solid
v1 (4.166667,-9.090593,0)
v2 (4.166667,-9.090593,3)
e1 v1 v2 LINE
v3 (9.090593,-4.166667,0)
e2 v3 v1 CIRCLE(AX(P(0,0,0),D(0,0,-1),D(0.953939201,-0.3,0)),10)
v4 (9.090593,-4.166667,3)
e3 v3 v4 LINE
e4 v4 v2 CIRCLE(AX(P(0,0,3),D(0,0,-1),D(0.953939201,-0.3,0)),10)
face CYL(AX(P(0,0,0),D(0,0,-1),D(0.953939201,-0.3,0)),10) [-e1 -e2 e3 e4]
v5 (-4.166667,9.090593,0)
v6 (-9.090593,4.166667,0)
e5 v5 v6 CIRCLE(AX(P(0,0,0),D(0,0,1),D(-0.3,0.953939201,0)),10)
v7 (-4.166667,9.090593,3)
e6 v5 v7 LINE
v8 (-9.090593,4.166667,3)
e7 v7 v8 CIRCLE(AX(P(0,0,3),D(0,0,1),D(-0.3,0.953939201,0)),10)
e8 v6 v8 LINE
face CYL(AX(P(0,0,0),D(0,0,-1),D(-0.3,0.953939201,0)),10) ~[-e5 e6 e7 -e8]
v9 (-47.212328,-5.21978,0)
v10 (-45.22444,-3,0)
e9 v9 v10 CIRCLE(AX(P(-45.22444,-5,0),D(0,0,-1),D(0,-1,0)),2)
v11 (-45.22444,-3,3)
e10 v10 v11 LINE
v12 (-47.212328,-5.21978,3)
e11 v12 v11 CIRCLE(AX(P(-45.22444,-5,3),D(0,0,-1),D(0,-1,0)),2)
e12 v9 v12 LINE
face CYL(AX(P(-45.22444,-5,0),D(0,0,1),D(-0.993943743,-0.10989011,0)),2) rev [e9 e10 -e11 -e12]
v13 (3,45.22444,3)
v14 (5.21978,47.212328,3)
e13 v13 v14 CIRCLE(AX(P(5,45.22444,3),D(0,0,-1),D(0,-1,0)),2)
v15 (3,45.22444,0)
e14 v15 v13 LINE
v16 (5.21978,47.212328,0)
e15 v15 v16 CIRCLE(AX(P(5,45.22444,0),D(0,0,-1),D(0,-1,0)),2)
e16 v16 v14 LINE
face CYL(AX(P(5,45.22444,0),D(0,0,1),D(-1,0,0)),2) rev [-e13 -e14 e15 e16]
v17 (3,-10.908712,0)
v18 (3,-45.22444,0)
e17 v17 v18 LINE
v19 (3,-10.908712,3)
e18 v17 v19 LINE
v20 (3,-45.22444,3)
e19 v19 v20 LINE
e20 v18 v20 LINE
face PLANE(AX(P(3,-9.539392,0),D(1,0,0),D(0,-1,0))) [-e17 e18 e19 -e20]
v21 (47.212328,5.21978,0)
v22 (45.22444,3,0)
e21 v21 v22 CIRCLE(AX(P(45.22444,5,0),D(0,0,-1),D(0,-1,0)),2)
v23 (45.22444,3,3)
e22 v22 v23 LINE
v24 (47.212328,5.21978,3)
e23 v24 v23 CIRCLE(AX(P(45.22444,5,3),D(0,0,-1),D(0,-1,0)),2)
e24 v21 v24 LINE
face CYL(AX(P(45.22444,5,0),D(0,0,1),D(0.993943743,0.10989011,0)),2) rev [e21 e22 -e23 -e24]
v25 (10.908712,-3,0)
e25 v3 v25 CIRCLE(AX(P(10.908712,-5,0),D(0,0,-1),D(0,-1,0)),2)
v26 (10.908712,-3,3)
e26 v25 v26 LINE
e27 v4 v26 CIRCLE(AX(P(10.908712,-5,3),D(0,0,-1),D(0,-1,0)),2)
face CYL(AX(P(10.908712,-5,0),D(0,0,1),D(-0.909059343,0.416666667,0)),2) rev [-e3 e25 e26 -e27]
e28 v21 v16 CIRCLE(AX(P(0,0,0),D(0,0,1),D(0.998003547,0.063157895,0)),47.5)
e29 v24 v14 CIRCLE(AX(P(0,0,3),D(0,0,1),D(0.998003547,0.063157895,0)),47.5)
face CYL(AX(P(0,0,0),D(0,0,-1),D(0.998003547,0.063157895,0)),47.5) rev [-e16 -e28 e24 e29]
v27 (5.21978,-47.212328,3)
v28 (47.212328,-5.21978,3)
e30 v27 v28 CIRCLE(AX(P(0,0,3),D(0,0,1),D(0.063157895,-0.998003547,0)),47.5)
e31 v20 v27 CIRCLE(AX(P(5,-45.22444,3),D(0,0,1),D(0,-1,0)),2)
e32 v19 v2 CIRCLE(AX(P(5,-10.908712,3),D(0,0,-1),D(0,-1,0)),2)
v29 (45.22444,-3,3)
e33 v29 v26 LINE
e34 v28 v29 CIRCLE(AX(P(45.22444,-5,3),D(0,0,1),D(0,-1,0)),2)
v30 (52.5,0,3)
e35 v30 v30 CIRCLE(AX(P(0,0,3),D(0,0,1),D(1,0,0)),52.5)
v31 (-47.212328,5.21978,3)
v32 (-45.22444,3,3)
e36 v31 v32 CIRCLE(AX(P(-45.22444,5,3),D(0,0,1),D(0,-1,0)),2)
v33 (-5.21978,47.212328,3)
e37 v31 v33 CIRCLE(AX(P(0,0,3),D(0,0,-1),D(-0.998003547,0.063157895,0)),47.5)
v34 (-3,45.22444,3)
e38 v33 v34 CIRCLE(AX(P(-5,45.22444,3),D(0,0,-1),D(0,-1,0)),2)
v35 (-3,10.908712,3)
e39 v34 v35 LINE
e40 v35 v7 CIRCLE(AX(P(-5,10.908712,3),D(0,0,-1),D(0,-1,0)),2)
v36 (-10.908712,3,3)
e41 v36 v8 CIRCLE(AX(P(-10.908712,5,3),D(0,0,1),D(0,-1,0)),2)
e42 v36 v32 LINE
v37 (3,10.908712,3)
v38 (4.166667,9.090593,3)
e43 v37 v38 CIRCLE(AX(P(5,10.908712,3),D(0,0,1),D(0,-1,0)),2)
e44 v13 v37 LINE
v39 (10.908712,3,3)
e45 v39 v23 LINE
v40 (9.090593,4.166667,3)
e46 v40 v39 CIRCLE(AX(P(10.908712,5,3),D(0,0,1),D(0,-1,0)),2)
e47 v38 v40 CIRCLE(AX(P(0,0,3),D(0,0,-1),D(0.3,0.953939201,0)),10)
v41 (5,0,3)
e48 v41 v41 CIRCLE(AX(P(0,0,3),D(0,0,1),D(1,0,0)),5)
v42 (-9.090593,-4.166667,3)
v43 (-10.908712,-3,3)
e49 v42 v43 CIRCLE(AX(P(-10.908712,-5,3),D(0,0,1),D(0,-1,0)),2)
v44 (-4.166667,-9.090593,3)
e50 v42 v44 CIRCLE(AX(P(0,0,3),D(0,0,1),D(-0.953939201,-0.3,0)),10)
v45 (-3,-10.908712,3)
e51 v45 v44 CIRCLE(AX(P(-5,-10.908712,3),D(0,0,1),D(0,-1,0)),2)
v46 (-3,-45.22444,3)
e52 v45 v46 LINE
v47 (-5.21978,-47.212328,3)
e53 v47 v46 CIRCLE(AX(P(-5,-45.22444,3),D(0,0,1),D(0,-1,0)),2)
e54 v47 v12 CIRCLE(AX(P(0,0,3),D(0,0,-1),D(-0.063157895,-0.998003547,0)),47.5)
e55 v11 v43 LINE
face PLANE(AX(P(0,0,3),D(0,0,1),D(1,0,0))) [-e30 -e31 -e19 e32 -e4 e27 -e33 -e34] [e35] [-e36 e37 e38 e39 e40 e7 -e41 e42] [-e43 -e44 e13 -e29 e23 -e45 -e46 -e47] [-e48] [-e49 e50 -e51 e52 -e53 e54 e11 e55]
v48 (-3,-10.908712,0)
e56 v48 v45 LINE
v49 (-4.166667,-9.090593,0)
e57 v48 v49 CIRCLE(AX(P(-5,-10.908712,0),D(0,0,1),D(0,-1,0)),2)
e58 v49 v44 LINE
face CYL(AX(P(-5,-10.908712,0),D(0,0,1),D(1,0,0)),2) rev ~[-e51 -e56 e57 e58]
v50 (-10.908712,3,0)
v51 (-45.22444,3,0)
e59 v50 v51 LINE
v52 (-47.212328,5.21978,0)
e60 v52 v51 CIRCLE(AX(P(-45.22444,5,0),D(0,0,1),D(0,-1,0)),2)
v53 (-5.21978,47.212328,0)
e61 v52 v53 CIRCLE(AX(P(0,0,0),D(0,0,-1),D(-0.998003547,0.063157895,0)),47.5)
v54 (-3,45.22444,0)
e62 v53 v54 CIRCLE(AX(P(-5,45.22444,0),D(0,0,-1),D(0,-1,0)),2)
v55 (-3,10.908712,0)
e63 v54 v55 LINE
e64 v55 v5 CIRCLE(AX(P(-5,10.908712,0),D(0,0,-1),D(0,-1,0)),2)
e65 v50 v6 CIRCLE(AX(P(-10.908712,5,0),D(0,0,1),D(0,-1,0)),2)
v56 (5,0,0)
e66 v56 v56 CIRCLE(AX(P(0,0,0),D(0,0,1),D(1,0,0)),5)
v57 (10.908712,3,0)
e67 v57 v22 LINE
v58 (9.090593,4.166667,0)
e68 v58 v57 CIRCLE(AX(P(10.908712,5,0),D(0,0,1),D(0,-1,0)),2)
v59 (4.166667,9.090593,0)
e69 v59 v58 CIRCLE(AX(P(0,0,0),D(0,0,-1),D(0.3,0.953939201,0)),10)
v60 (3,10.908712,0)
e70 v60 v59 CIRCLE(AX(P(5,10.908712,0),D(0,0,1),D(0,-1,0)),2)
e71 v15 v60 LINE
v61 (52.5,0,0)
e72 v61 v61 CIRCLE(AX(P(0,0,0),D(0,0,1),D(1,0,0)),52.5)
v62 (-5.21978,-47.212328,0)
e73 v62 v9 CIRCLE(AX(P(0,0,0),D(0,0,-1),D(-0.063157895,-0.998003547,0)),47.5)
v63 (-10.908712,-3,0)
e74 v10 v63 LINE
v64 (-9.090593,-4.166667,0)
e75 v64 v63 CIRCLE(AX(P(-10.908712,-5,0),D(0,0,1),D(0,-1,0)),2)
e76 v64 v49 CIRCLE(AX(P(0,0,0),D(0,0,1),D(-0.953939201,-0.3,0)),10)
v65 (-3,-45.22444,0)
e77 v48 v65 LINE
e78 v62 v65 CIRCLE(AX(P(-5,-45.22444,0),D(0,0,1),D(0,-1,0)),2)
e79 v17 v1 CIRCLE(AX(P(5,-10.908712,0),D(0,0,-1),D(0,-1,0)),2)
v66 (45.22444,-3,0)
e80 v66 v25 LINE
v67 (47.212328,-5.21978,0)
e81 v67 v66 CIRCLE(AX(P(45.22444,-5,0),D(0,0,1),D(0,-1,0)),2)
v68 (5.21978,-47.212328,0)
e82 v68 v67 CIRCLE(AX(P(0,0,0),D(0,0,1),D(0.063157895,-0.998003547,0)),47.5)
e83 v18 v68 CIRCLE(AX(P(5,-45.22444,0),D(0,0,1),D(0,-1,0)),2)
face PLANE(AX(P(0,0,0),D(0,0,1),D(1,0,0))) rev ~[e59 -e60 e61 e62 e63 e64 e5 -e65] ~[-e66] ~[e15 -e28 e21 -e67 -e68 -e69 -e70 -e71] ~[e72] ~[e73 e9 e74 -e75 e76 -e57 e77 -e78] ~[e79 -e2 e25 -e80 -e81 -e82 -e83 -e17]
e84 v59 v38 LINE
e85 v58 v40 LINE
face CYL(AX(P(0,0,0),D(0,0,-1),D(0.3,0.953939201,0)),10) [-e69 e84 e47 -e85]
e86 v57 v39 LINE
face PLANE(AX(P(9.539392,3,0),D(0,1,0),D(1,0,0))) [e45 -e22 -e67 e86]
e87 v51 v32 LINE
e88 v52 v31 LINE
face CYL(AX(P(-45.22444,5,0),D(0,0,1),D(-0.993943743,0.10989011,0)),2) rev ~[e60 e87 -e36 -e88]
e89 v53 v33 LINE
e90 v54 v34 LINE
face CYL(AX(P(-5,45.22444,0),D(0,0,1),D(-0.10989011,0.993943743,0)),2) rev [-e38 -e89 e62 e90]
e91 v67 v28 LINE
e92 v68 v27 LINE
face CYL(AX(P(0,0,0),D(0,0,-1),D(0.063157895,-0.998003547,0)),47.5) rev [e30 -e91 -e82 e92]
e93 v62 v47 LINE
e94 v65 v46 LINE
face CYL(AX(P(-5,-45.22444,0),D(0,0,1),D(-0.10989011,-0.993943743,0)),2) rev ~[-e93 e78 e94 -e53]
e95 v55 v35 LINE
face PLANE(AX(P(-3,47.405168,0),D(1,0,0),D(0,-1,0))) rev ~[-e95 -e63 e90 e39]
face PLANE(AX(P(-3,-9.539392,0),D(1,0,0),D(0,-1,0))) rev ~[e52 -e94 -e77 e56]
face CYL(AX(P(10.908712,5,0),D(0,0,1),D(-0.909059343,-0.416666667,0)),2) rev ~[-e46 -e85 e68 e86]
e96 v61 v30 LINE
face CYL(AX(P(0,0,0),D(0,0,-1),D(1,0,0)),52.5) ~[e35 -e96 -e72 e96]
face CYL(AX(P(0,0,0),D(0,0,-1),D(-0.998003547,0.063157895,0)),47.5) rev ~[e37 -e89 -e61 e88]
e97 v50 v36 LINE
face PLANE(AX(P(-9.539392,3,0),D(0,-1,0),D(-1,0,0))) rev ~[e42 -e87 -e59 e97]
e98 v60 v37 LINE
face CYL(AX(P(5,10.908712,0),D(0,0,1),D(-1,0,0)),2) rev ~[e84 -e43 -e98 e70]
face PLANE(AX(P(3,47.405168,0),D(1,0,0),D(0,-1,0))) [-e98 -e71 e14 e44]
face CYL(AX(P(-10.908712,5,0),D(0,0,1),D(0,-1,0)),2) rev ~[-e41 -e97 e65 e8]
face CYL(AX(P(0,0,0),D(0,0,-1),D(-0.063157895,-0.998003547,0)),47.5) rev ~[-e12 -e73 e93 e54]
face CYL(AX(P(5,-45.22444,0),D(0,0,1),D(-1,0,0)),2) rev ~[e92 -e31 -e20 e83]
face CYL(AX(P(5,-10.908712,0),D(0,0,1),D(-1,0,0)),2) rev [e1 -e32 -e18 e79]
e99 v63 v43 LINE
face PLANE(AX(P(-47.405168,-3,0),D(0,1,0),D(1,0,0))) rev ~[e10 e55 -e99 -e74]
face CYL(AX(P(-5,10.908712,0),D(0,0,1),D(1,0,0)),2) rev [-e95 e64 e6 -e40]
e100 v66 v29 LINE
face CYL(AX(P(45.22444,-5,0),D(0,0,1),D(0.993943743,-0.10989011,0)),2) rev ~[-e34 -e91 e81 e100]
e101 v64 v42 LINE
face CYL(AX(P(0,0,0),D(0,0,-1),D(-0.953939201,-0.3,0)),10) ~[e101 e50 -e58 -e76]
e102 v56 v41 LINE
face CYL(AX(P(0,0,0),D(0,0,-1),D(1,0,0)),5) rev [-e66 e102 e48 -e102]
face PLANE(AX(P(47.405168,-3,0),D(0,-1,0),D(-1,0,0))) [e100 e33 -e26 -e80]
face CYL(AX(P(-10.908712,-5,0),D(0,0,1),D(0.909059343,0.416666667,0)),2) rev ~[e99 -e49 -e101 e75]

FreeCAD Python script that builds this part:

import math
import FreeCAD as App
import Part
import Sketcher
from FreeCAD import Vector
Q = App.Units.Quantity


def edges_at(feature, points):
    """Names of the edges that pass closest to the given points."""
    edges = feature.Shape.Edges
    near = lambda p: min(range(len(edges)), key=lambda i: edges[i].distToShape(Part.Vertex(*p))[0])
    return sorted({f"Edge{near(p) + 1}" for p in points})

doc = App.newDocument("Part")
body = doc.addObject("PartDesign::Body", "Body")

sketch1 = body.newObject("Sketcher::SketchObject", "Sketch")
sketch1.AttachmentSupport = (doc.getObject("XY_Plane"), [""])
sketch1.MapMode = "FlatFace"
sketch1.addGeometry([
    Part.Circle(Vector(0, 0, 0), Vector(0, 0, 1), 52.5),
    Part.ArcOfCircle(Part.Circle(Vector(0, 0, 0), Vector(0, 0, 1), 47.5), math.radians(-176.378909), math.radians(-93.621091)),
    Part.LineSegment(Vector(-47.405168, -3, 0), Vector(-9.539392, -3, 0)),
    Part.ArcOfCircle(Part.Circle(Vector(0, 0, 0), Vector(0, 0, 1), 10), math.radians(-162.542397), math.radians(-107.457603)),
    Part.LineSegment(Vector(-3, -9.539392, 0), Vector(-3, -47.405168, 0)),
    Part.LineSegment(Vector(3, -47.405168, 0), Vector(3, -9.539392, 0)),
    Part.ArcOfCircle(Part.Circle(Vector(0, 0, 0), Vector(0, 0, 1), 10), math.radians(-72.542397), math.radians(-17.457603)),
    Part.LineSegment(Vector(9.539392, -3, 0), Vector(47.405168, -3, 0)),
    Part.ArcOfCircle(Part.Circle(Vector(0, 0, 0), Vector(0, 0, 1), 47.5), math.radians(-86.378909), math.radians(-3.621091)),
    Part.Circle(Vector(0, 0, 0), Vector(0, 0, 1), 5),
    Part.ArcOfCircle(Part.Circle(Vector(0, 0, 0), Vector(0, 0, 1), 47.5), math.radians(93.621091), math.radians(176.378909)),
    Part.LineSegment(Vector(-3, 47.405168, 0), Vector(-3, 9.539392, 0)),
    Part.ArcOfCircle(Part.Circle(Vector(0, 0, 0), Vector(0, 0, 1), 10), math.radians(107.457603), math.radians(162.542397)),
    Part.LineSegment(Vector(-9.539392, 3, 0), Vector(-47.405168, 3, 0)),
    Part.LineSegment(Vector(3, 9.539392, 0), Vector(3, 47.405168, 0)),
    Part.ArcOfCircle(Part.Circle(Vector(0, 0, 0), Vector(0, 0, 1), 47.5), math.radians(3.621091), math.radians(86.378909)),
    Part.LineSegment(Vector(47.405168, 3, 0), Vector(9.539392, 3, 0)),
    Part.ArcOfCircle(Part.Circle(Vector(0, 0, 0), Vector(0, 0, 1), 10), math.radians(17.457603), math.radians(72.542397)),
], False)
sketch1.addConstraint([
    Sketcher.Constraint("Coincident", 1, 1, 2, 1),
    Sketcher.Constraint("Coincident", 2, 2, 3, 1),
    Sketcher.Constraint("Coincident", 3, 2, 4, 1),
    Sketcher.Constraint("Coincident", 4, 2, 1, 2),
    Sketcher.Constraint("Coincident", 5, 2, 6, 1),
    Sketcher.Constraint("Coincident", 6, 2, 7, 1),
    Sketcher.Constraint("Coincident", 7, 2, 8, 2),
    Sketcher.Constraint("Coincident", 8, 1, 5, 1),
    Sketcher.Constraint("Coincident", 10, 1, 11, 1),
    Sketcher.Constraint("Coincident", 11, 2, 12, 1),
    Sketcher.Constraint("Coincident", 12, 2, 13, 1),
    Sketcher.Constraint("Coincident", 13, 2, 10, 2),
    Sketcher.Constraint("Coincident", 14, 2, 15, 2),
    Sketcher.Constraint("Coincident", 15, 1, 16, 1),
    Sketcher.Constraint("Coincident", 16, 2, 17, 1),
    Sketcher.Constraint("Coincident", 17, 2, 14, 1),
    Sketcher.Constraint("Horizontal", 2),
    Sketcher.Constraint("Vertical", 4),
    Sketcher.Constraint("Vertical", 5),
    Sketcher.Constraint("Horizontal", 7),
    Sketcher.Constraint("Vertical", 11),
    Sketcher.Constraint("Horizontal", 13),
    Sketcher.Constraint("Vertical", 14),
    Sketcher.Constraint("Horizontal", 16),
    Sketcher.Constraint("Coincident", 0, 3, -1, 1),
    Sketcher.Constraint("Coincident", 1, 3, -1, 1),
    Sketcher.Constraint("Coincident", 3, 3, -1, 1),
    Sketcher.Constraint("Coincident", 6, 3, -1, 1),
    Sketcher.Constraint("Coincident", 8, 3, -1, 1),
    Sketcher.Constraint("Coincident", 9, 3, -1, 1),
    Sketcher.Constraint("Coincident", 10, 3, -1, 1),
    Sketcher.Constraint("Coincident", 12, 3, -1, 1),
    Sketcher.Constraint("Coincident", 15, 3, -1, 1),
    Sketcher.Constraint("Coincident", 17, 3, -1, 1),
    Sketcher.Constraint("Equal", 3, 6),
    Sketcher.Constraint("Equal", 1, 8),
    Sketcher.Constraint("Equal", 8, 10),
    Sketcher.Constraint("Equal", 6, 12),
    Sketcher.Constraint("Equal", 10, 15),
    Sketcher.Constraint("Equal", 12, 17),
    Sketcher.Constraint("Horizontal", 3, 2, 5, 2),
    Sketcher.Constraint("Horizontal", 2, 2, 6, 2),
    Sketcher.Constraint("Horizontal", 10, 1, 14, 2),
    Sketcher.Constraint("Horizontal", 13, 2, 15, 1),
    Sketcher.Constraint("Vertical", 4, 2, 10, 1),
    Sketcher.Constraint("Vertical", 2, 2, 12, 2),
    Sketcher.Constraint("Equal", 16, 4),
    Sketcher.Constraint("Diameter", 0, Q("105 mm")),
    Sketcher.Constraint("Diameter", 9, Q("10 mm")),
    Sketcher.Constraint("Radius", 3, Q("10 mm")),
    Sketcher.Constraint("Radius", 1, Q("47.5 mm")),
    Sketcher.Constraint("DistanceY", 1, 1, -1, 1, Q("3 mm")),
])
pad1 = body.newObject("PartDesign::Pad", "Pad")
pad1.Profile = sketch1
pad1.Length = 3
doc.recompute()

fillet = body.newObject("PartDesign::Fillet", "Fillet")
fillet.Base = (pad1, edges_at(pad1, [
    (-3, 47.405, 1.5),
    (-47.405, 3, 1.5),
    (-9.539, 3, 1.5),
    (-3, 9.539, 1.5),
    (3, -47.405, 1.5),
    (47.405, -3, 1.5),
    (9.539, -3, 1.5),
    (3, -9.539, 1.5),
    (-47.405, -3, 1.5),
    (-3, -47.405, 1.5),
    (-3, -9.539, 1.5),
    (-9.539, -3, 1.5),
    (3, 9.539, 1.5),
    (9.539, 3, 1.5),
    (47.405, 3, 1.5),
    (3, 47.405, 1.5),
]))
fillet.Radius = 2

doc.recompute()
